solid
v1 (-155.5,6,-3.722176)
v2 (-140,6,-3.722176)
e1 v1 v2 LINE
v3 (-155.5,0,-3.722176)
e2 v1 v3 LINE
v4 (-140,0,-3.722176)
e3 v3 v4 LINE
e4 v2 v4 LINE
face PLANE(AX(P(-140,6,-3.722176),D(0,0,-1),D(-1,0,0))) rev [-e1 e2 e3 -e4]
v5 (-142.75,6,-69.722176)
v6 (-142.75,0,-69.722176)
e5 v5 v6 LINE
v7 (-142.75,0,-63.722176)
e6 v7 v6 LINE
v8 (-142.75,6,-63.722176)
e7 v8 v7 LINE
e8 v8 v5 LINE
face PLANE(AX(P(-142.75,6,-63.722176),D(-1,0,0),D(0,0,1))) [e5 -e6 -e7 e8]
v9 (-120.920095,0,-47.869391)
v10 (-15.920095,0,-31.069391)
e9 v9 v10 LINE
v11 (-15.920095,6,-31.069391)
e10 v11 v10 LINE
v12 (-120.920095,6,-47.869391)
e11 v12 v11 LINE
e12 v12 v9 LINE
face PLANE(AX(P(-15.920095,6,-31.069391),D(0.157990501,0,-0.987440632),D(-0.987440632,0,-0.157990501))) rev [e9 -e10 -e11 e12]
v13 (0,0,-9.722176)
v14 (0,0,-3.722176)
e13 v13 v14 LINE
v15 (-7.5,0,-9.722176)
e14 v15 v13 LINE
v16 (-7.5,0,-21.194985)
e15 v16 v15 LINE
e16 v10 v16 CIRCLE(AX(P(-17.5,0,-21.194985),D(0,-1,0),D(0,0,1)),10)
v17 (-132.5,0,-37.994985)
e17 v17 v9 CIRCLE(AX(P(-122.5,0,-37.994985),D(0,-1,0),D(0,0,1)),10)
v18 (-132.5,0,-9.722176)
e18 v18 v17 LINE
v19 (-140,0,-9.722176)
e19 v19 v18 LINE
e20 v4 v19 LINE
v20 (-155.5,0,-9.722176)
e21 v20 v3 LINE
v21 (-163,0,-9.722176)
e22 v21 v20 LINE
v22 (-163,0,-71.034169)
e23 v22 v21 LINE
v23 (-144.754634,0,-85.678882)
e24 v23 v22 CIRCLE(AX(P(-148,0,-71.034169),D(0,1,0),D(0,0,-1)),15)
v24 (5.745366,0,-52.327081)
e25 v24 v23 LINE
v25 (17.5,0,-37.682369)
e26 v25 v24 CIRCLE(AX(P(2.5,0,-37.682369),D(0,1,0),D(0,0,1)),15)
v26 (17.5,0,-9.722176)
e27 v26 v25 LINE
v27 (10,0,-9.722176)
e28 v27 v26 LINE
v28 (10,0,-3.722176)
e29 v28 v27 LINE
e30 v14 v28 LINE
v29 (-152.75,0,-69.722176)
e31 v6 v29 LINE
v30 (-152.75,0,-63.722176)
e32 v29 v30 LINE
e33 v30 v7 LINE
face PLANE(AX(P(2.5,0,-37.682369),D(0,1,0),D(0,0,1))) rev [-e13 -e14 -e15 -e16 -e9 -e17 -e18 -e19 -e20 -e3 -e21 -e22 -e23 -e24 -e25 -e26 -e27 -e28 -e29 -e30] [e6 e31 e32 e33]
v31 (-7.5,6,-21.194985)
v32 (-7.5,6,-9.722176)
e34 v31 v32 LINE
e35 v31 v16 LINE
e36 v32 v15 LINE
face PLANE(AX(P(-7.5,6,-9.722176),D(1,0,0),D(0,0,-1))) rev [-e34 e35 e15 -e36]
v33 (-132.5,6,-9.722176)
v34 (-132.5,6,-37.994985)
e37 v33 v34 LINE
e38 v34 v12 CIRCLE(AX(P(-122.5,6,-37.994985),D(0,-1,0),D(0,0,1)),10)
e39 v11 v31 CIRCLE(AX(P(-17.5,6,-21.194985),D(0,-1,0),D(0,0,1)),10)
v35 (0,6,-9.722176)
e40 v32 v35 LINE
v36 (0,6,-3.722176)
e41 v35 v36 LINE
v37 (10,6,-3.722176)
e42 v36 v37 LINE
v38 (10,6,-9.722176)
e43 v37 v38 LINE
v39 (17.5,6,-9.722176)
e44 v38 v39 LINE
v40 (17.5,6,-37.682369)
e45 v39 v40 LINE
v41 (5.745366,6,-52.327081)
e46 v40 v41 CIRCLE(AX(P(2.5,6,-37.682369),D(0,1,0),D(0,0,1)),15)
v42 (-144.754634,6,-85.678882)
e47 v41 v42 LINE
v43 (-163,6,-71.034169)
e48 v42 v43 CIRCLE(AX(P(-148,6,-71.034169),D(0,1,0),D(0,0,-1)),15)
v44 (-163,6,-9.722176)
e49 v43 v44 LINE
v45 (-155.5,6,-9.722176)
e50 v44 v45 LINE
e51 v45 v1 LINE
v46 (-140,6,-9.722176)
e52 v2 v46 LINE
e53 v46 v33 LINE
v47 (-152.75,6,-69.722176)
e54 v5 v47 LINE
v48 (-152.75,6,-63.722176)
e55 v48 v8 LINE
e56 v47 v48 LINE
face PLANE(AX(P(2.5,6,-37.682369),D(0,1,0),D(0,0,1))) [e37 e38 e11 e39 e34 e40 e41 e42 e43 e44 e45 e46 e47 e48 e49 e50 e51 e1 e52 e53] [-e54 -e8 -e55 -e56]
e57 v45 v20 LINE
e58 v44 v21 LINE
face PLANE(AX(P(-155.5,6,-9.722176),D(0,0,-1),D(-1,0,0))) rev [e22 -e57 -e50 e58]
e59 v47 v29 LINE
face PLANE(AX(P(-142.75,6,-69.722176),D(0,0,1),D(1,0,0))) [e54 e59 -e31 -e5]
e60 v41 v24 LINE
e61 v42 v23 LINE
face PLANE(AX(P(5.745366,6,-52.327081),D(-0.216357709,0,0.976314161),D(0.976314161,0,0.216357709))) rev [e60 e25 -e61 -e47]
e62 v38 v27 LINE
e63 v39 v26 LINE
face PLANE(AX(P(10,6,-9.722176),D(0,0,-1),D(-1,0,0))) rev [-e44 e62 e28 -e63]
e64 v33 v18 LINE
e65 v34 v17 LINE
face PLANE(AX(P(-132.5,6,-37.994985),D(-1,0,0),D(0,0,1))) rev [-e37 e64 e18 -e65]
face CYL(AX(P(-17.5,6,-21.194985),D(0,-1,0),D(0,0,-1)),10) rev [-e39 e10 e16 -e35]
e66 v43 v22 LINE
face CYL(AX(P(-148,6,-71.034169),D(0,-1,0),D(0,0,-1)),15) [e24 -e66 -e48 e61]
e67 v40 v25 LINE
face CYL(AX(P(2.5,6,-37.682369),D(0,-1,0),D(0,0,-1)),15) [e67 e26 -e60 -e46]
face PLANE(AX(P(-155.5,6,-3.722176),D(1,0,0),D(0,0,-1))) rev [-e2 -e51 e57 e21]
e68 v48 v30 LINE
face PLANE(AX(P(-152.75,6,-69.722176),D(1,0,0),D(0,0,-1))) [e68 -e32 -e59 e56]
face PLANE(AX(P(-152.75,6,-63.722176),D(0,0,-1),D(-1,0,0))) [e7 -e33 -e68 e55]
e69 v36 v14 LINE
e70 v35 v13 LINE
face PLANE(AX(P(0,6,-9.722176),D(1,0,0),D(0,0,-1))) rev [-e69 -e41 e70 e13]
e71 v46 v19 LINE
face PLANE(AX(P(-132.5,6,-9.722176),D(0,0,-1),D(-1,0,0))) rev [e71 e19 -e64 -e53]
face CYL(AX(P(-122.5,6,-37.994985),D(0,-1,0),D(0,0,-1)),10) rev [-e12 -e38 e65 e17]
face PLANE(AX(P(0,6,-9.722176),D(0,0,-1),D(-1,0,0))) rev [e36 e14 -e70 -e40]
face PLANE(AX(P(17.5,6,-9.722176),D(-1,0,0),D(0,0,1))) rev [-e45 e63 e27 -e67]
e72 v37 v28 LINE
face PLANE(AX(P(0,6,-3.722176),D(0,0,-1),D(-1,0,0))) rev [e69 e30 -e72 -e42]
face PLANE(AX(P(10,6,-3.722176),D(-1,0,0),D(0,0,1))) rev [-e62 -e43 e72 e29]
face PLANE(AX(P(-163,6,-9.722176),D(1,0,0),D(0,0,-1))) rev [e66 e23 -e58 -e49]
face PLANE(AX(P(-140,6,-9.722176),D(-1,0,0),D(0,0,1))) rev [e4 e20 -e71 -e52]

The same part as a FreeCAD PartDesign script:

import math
import FreeCAD as App
import Part
import Sketcher
Q = App.Units.Quantity


def add_polygon(sketch, points):
    """Adds a closed chain of lines whose ends are joined by coincident constraints."""
    first, n = sketch.GeometryCount, len(points)
    for a, b in zip(points, points[1:] + points[:1]):
        sketch.addGeometry(Part.LineSegment(App.Vector(*a, 0), App.Vector(*b, 0)), False)
    for i in range(n):
        sketch.addConstraint(Sketcher.Constraint("Coincident", first + i, 2, first + (i + 1) % n, 1))

doc = App.newDocument("Part")
body = doc.addObject("PartDesign::Body", "Body")

sketch1 = body.newObject("Sketcher::SketchObject", "Sketch")
sketch1.AttachmentSupport = (doc.getObject("XZ_Plane"), [""])
sketch1.MapMode = "FlatFace"
sketch1.addGeometry(Part.LineSegment(App.Vector(-8, -10, 0), App.Vector(0, -10, 0)), False)
sketch1.addGeometry(Part.LineSegment(App.Vector(0, -10, 0), App.Vector(0, -4, 0)), False)
sketch1.addGeometry(Part.LineSegment(App.Vector(0, -4, 0), App.Vector(10, -4, 0)), False)
sketch1.addGeometry(Part.LineSegment(App.Vector(10, -4, 0), App.Vector(10, -10, 0)), False)
sketch1.addGeometry(Part.LineSegment(App.Vector(10, -10, 0), App.Vector(18, -10, 0)), False)
sketch1.addGeometry(Part.LineSegment(App.Vector(18, -10, 0), App.Vector(18, -38, 0)), False)
sketch1.addGeometry(Part.ArcOfCircle(Part.Circle(App.Vector(2, -38, 0), App.Vector(0, 0, 1), 15), math.radians(-78), math.radians(0)), False)
sketch1.addGeometry(Part.LineSegment(App.Vector(6, -52, 0), App.Vector(-145, -86, 0)), False)
sketch1.addGeometry(Part.ArcOfCircle(Part.Circle(App.Vector(-148, -71, 0), App.Vector(0, 0, 1), 15), math.radians(180), math.radians(282)), False)
sketch1.addGeometry(Part.LineSegment(App.Vector(-163, -71, 0), App.Vector(-163, -10, 0)), False)
sketch1.addGeometry(Part.LineSegment(App.Vector(-163, -10, 0), App.Vector(-156, -10, 0)), False)
sketch1.addGeometry(Part.LineSegment(App.Vector(-156, -10, 0), App.Vector(-156, -4, 0)), False)
sketch1.addGeometry(Part.LineSegment(App.Vector(-156, -4, 0), App.Vector(-140, -4, 0)), False)
sketch1.addGeometry(Part.LineSegment(App.Vector(-140, -4, 0), App.Vector(-140, -10, 0)), False)
sketch1.addGeometry(Part.LineSegment(App.Vector(-140, -10, 0), App.Vector(-132, -10, 0)), False)
sketch1.addGeometry(Part.LineSegment(App.Vector(-132, -10, 0), App.Vector(-132, -38, 0)), False)
sketch1.addGeometry(Part.ArcOfCircle(Part.Circle(App.Vector(-122, -38, 0), App.Vector(0, 0, 1), 10), math.radians(-180), math.radians(-81)), False)
sketch1.addGeometry(Part.LineSegment(App.Vector(-121, -48, 0), App.Vector(-16, -31, 0)), False)
sketch1.addGeometry(Part.ArcOfCircle(Part.Circle(App.Vector(-18, -21, 0), App.Vector(0, 0, 1), 10), math.radians(-81), math.radians(0)), False)
sketch1.addGeometry(Part.LineSegment(App.Vector(-8, -21, 0), App.Vector(-8, -10, 0)), False)
add_polygon(sketch1, [(-153, -64), (-153, -70), (-143, -70), (-143, -64)])
sketch1.addConstraint(Sketcher.Constraint("Coincident", 0, 2, 1, 1))
sketch1.addConstraint(Sketcher.Constraint("Coincident", 1, 2, 2, 1))
sketch1.addConstraint(Sketcher.Constraint("Coincident", 2, 2, 3, 1))
sketch1.addConstraint(Sketcher.Constraint("Coincident", 3, 2, 4, 1))
sketch1.addConstraint(Sketcher.Constraint("Coincident", 4, 2, 5, 1))
sketch1.addConstraint(Sketcher.Constraint("Tangent", 5, 2, 6, 2))
sketch1.addConstraint(Sketcher.Constraint("Tangent", 6, 1, 7, 1))
sketch1.addConstraint(Sketcher.Constraint("Tangent", 7, 2, 8, 2))
sketch1.addConstraint(Sketcher.Constraint("Tangent", 8, 1, 9, 1))
sketch1.addConstraint(Sketcher.Constraint("Coincident", 9, 2, 10, 1))
sketch1.addConstraint(Sketcher.Constraint("Coincident", 10, 2, 11, 1))
sketch1.addConstraint(Sketcher.Constraint("Coincident", 11, 2, 12, 1))
sketch1.addConstraint(Sketcher.Constraint("Coincident", 12, 2, 13, 1))
sketch1.addConstraint(Sketcher.Constraint("Coincident", 13, 2, 14, 1))
sketch1.addConstraint(Sketcher.Constraint("Coincident", 14, 2, 15, 1))
sketch1.addConstraint(Sketcher.Constraint("Tangent", 15, 2, 16, 1))
sketch1.addConstraint(Sketcher.Constraint("Tangent", 16, 2, 17, 1))
sketch1.addConstraint(Sketcher.Constraint("Tangent", 17, 2, 18, 1))
sketch1.addConstraint(Sketcher.Constraint("Tangent", 18, 2, 19, 1))
sketch1.addConstraint(Sketcher.Constraint("Coincident", 19, 2, 0, 1))
sketch1.addConstraint(Sketcher.Constraint("Horizontal", 0))
sketch1.addConstraint(Sketcher.Constraint("Vertical", 1))
sketch1.addConstraint(Sketcher.Constraint("Horizontal", 2))
sketch1.addConstraint(Sketcher.Constraint("Vertical", 3))
sketch1.addConstraint(Sketcher.Constraint("Horizontal", 4))
sketch1.addConstraint(Sketcher.Constraint("Vertical", 5))
sketch1.addConstraint(Sketcher.Constraint("Vertical", 9))
sketch1.addConstraint(Sketcher.Constraint("Horizontal", 10))
sketch1.addConstraint(Sketcher.Constraint("Vertical", 11))
sketch1.addConstraint(Sketcher.Constraint("Horizontal", 12))
sketch1.addConstraint(Sketcher.Constraint("Vertical", 13))
sketch1.addConstraint(Sketcher.Constraint("Horizontal", 14))
sketch1.addConstraint(Sketcher.Constraint("Vertical", 15))
sketch1.addConstraint(Sketcher.Constraint("Vertical", 19))
sketch1.addConstraint(Sketcher.Constraint("Vertical", 20))
sketch1.addConstraint(Sketcher.Constraint("Horizontal", 21))
sketch1.addConstraint(Sketcher.Constraint("Vertical", 22))
sketch1.addConstraint(Sketcher.Constraint("Horizontal", 23))
sketch1.addConstraint(Sketcher.Constraint("Equal", 6, 8))
sketch1.addConstraint(Sketcher.Constraint("Equal", 16, 18))
sketch1.addConstraint(Sketcher.Constraint("PointOnObject", 0, 2, -2))
sketch1.addConstraint(Sketcher.Constraint("Horizontal", 0, 2, 3, 2))
sketch1.addConstraint(Sketcher.Constraint("Horizontal", 4, 2, 9, 2))
sketch1.addConstraint(Sketcher.Constraint("Horizontal", 2, 2, 11, 2))
sketch1.addConstraint(Sketcher.Constraint("Horizontal", 10, 2, 13, 2))
sketch1.addConstraint(Sketcher.Constraint("Equal", 0, 4))
sketch1.addConstraint(Sketcher.Constraint("Equal", 4, 10))
sketch1.addConstraint(Sketcher.Constraint("Equal", 10, 14))
sketch1.addConstraint(Sketcher.Constraint("Equal", 2, 21))
sketch1.addConstraint(Sketcher.Constraint("Equal", 13, 20))
sketch1.addConstraint(Sketcher.Constraint("Radius", 6, Q("15 mm")))
sketch1.addConstraint(Sketcher.Constraint("Radius", 16, Q("10 mm")))
sketch1.addConstraint(Sketcher.Constraint("DistanceX", 2, 1, 2, 2, Q("10 mm")))
sketch1.addConstraint(Sketcher.Constraint("DistanceY", 1, 1, 1, 2, Q("6 mm")))
sketch1.addConstraint(Sketcher.Constraint("DistanceX", 0, 1, 0, 2, Q("7.5 mm")))
sketch1.addConstraint(Sketcher.Constraint("DistanceX", 12, 1, 12, 2, Q("15.5 mm")))
sketch1.addConstraint(Sketcher.Constraint("DistanceX", 8, 3, -1, 1, Q("148 mm")))
sketch1.addConstraint(Sketcher.Constraint("DistanceY", 16, 3, 18, 3, Q("16.8 mm")))
sketch1.addConstraint(Sketcher.Constraint("DistanceX", 20, 2, -1, 1, Q("152.75 mm")))
sketch1.addConstraint(Sketcher.Constraint("Distance", 7, Q("154.1512 mm")))
sketch1.addConstraint(Sketcher.Constraint("DistanceY", 15, 2, 15, 1, Q("28.272809 mm")))
sketch1.addConstraint(Sketcher.Constraint("DistanceY", 5, 2, 5, 1, Q("27.960193 mm")))
sketch1.addConstraint(Sketcher.Constraint("DistanceY", 6, 3, -1, 1, Q("37.682369 mm")))
sketch1.addConstraint(Sketcher.Constraint("DistanceY", 20, 2, 15, 2, Q("31.727191 mm")))
pad1 = body.newObject("PartDesign::Pad", "Pad")
pad1.Profile = sketch1
pad1.Length = 6
pad1.Reversed = True

doc.recompute()
